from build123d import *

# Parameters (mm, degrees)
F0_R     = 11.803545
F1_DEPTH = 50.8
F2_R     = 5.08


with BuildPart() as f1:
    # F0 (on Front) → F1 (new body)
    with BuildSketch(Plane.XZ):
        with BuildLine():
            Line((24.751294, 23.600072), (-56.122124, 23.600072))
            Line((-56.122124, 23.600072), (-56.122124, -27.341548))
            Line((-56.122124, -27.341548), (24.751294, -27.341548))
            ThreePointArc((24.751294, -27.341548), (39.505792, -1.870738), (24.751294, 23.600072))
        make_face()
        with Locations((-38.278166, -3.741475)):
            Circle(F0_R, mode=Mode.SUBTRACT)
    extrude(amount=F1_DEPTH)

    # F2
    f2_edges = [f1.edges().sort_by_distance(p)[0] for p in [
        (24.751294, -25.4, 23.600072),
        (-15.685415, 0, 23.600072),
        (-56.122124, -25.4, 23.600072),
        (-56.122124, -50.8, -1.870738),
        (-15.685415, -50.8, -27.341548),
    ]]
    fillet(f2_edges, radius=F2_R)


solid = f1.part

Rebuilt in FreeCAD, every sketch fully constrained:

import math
import FreeCAD as App
import Part
import Sketcher
from FreeCAD import Vector
Q = App.Units.Quantity


def edges_at(feature, points):
    """Names of the edges that pass closest to the given points."""
    edges = feature.Shape.Edges
    near = lambda p: min(range(len(edges)), key=lambda i: edges[i].distToShape(Part.Vertex(*p))[0])
    return sorted({f"Edge{near(p) + 1}" for p in points})

doc = App.newDocument("Part")
body = doc.addObject("PartDesign::Body", "Body")

# Sketch on XZ plane
sketch1 = body.newObject("Sketcher::SketchObject", "Sketch")
sketch1.AttachmentSupport = (doc.getObject("XZ_Plane"), [""])
sketch1.MapMode = "FlatFace"
sketch1.addGeometry([
    Part.LineSegment(Vector(25, 24, 0), Vector(-56, 24, 0)),  # 0
    Part.LineSegment(Vector(-56, 24, 0), Vector(-56, -27, 0)),  # 1
    Part.LineSegment(Vector(-56, -27, 0), Vector(25, -27, 0)),  # 2
    Part.ArcOfCircle(Part.Circle(Vector(10, -2, 0), Vector(0, 0, 1), 29), math.radians(-60), math.radians(60)),  # 3
    Part.Circle(Vector(-38, -4, 0), Vector(0, 0, 1), 12),  # 4
], False)
sketch1.addConstraint([
    Sketcher.Constraint("Coincident", 0, 2, 1, 1),
    Sketcher.Constraint("Coincident", 1, 2, 2, 1),
    Sketcher.Constraint("Coincident", 2, 2, 3, 1),
    Sketcher.Constraint("Coincident", 3, 2, 0, 1),
    Sketcher.Constraint("Horizontal", 0),
    Sketcher.Constraint("Vertical", 1),
    Sketcher.Constraint("Horizontal", 2),
    Sketcher.Constraint("Vertical", 2, 2, 3, 2),
    Sketcher.Constraint("Diameter", 4, 23.60709),
    Sketcher.Constraint("Radius", 3, 29.362482),
    Sketcher.Constraint("DistanceX", 0, 2, 0, 1, 80.873418),
    Sketcher.Constraint("DistanceY", 1, 2, 1, 1, 50.94162),
    Sketcher.Constraint("DistanceX", -1, 1, 3, 3, 10.14331),
    Sketcher.Constraint("DistanceX", 0, 2, 4, 3, 17.843958),
    Sketcher.Constraint("DistanceY", 3, 3, -1, 1, 1.870738),
    Sketcher.Constraint("DistanceY", 4, 3, -1, 1, 3.741475),
])
pad1 = body.newObject("PartDesign::Pad", "Pad")
pad1.Profile = sketch1
pad1.Length = Q("2 in")
doc.recompute()

fillet = body.newObject("PartDesign::Fillet", "Fillet")
fillet.Base = (pad1, edges_at(pad1, [
    (24.751, -25.4, 23.6),
    (-15.685, 0, 23.6),
    (-56.122, -25.4, 23.6),
    (-56.122, -50.8, -1.871),
    (-15.685, -50.8, -27.342),
]))
fillet.Radius = Q("0.2 in")

doc.recompute()
